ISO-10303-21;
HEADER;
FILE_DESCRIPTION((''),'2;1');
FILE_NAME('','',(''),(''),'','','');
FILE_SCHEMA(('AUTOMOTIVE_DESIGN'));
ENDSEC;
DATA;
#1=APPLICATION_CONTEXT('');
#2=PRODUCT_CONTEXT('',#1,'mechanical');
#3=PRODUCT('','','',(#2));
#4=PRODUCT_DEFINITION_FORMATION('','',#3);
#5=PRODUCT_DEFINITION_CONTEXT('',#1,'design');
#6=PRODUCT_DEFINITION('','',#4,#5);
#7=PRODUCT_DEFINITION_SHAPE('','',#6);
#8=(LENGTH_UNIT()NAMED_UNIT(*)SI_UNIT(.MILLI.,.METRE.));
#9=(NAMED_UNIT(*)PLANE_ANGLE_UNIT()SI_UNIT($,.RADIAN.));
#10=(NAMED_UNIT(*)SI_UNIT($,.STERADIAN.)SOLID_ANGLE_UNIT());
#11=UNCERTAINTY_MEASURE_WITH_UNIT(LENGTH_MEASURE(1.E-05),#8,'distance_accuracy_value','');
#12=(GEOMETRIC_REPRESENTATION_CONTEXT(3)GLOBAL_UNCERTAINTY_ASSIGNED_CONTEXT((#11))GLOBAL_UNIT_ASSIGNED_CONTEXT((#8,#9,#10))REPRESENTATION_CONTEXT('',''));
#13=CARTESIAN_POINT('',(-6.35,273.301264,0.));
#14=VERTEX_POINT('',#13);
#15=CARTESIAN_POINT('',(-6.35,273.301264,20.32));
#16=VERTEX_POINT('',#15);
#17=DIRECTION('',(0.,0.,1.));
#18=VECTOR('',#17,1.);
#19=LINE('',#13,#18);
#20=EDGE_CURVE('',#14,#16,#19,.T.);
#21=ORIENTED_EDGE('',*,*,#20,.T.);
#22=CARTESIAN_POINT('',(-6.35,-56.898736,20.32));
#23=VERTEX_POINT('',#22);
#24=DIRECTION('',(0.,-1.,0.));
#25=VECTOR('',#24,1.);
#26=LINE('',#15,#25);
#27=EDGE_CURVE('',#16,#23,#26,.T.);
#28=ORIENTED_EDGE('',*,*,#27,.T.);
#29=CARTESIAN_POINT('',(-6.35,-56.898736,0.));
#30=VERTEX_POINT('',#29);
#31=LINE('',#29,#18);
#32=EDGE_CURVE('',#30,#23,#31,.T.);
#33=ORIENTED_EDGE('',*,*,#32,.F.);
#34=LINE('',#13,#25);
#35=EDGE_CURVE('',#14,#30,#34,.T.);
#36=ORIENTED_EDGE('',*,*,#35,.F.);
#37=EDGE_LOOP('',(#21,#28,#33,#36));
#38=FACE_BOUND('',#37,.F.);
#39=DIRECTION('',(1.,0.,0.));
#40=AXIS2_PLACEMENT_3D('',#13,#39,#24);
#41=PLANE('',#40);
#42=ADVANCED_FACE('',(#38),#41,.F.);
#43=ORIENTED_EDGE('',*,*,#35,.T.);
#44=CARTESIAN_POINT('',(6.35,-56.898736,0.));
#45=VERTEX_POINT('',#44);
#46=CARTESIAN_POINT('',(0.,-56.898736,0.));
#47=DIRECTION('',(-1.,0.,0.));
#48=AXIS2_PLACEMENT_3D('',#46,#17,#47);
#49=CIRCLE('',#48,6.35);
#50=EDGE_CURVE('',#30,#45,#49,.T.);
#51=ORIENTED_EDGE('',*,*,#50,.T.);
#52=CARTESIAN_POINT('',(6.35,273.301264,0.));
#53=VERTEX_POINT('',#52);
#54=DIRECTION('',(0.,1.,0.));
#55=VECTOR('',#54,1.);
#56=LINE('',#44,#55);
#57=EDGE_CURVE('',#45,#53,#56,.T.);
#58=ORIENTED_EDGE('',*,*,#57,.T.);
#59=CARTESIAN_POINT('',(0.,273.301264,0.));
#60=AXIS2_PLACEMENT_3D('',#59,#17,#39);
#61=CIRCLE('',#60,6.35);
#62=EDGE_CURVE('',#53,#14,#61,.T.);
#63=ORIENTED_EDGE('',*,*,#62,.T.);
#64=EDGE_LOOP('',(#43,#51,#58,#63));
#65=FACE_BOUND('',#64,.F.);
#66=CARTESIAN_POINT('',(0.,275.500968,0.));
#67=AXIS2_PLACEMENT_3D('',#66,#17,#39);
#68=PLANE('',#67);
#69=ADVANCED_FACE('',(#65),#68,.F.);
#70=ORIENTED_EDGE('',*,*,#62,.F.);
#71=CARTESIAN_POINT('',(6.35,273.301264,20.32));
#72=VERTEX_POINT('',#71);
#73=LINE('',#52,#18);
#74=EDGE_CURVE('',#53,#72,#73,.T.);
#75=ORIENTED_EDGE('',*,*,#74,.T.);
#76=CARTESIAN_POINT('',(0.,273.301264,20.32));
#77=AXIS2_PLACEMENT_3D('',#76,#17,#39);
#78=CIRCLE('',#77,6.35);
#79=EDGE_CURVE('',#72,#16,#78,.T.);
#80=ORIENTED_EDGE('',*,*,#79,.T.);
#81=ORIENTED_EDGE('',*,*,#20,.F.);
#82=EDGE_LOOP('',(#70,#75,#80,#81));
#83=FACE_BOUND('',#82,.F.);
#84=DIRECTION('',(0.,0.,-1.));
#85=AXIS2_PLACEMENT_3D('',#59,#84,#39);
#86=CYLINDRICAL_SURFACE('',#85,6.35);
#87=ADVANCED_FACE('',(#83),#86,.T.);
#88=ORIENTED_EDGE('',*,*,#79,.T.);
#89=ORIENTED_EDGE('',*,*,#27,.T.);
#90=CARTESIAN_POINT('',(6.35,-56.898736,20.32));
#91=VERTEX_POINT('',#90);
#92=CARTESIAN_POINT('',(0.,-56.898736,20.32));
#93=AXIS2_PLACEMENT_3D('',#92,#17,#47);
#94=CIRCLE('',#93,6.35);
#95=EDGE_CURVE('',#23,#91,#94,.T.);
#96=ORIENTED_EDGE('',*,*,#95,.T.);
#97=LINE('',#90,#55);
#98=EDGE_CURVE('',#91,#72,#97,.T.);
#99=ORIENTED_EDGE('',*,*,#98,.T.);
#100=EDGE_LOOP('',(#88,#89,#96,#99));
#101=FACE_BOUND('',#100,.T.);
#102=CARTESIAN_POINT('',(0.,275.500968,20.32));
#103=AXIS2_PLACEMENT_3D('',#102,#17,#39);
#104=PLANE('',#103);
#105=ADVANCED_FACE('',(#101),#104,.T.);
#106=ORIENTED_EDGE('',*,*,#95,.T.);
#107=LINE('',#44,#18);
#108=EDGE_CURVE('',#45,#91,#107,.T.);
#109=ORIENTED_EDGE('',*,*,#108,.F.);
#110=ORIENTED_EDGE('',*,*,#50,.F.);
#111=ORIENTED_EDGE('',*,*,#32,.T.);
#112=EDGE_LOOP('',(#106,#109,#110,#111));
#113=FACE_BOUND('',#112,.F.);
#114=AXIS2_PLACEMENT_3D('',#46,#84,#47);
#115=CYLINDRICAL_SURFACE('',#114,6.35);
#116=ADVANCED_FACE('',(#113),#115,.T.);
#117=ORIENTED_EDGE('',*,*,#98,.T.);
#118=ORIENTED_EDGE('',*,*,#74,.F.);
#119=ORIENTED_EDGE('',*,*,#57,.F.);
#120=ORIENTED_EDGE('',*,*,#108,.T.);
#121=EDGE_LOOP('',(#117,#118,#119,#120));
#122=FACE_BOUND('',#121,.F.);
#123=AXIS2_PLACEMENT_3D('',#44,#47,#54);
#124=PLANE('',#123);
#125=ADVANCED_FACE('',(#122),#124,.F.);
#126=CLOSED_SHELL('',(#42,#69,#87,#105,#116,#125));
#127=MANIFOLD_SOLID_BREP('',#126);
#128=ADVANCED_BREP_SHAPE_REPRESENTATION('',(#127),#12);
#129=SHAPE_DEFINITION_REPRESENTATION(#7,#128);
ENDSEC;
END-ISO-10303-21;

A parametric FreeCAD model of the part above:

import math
import FreeCAD as App
import Part
import Sketcher
Q = App.Units.Quantity

doc = App.newDocument("Part")
params = doc.addObject("Spreadsheet::Sheet", "Params")
for row, (alias, value) in enumerate([
    ("sketch1_height", "13 in"),
    ("sketch1_radius", "0.25 in"),
    ("pad1_length", "0.8 in"),
], start=1):
    params.set(f"A{row}", alias)
    params.set(f"B{row}", "=" + value)
    params.setAlias(f"B{row}", alias)

body = doc.addObject("PartDesign::Body", "Body")

# Sketch on XY plane
sketch1 = doc.addObject("Sketcher::SketchObject", "Sketch")
body.addObject(sketch1)
sketch1.AttachmentSupport = (doc.XY_Plane, [""])
sketch1.MapMode = "FlatFace"
sketch1.addGeometry([
    Part.ArcOfCircle(Part.Circle(App.Vector(0, 273, 0), App.Vector(0, 0, 1), 6), math.radians(0), math.radians(180)),
    Part.LineSegment(App.Vector(-6, 273, 0), App.Vector(-6, -57, 0)),
    Part.ArcOfCircle(Part.Circle(App.Vector(0, -57, 0), App.Vector(0, 0, 1), 6), math.radians(180), math.radians(360)),
    Part.LineSegment(App.Vector(6, -57, 0), App.Vector(6, 273, 0)),
], False)
sketch1.addConstraint([
    Sketcher.Constraint("Tangent", 0, 2, 1, 1),
    Sketcher.Constraint("Tangent", 1, 2, 2, 1),
    Sketcher.Constraint("Tangent", 2, 2, 3, 1),
    Sketcher.Constraint("Tangent", 3, 2, 0, 1),
    Sketcher.Constraint("Vertical", 1),
    Sketcher.Constraint("Vertical", 3),
    Sketcher.Constraint("PointOnObject", 0, 3, -2),
    Sketcher.Constraint("DistanceY", 1, 2, 1, 1, Q("13 in")),
    Sketcher.Constraint("Radius", 0, Q("0.25 in")),
    Sketcher.Constraint("DistanceY", -1, 1, 0, 3, 273.301264),
])
sketch1.setExpression("Constraints[7]", "Params.sketch1_height")
sketch1.setExpression("Constraints[8]", "Params.sketch1_radius")
pad1 = doc.addObject("PartDesign::Pad", "Pad")
body.addObject(pad1)
pad1.Profile = sketch1
pad1.setExpression("Length", "Params.pad1_length")

doc.recompute()
